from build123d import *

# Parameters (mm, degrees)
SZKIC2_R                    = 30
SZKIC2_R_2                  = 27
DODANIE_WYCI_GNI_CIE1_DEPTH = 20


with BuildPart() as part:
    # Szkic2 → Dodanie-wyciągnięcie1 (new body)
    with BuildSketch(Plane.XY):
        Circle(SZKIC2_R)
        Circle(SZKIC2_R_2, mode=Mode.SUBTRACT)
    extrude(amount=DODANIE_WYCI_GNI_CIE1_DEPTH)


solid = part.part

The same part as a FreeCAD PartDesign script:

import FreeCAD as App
import Part
import Sketcher
Q = App.Units.Quantity

doc = App.newDocument("Part")
body = doc.addObject("PartDesign::Body", "Body")

# Sketch on XY plane
sketch1 = body.newObject("Sketcher::SketchObject", "Sketch")
sketch1.AttachmentSupport = (doc.getObject("XY_Plane"), [""])
sketch1.MapMode = "FlatFace"
sketch1.addGeometry(Part.Circle(App.Vector(0, 0, 0), App.Vector(0, 0, 1), 30), False)
sketch1.addGeometry(Part.Circle(App.Vector(0, 0, 0), App.Vector(0, 0, 1), 27), False)
sketch1.addConstraint(Sketcher.Constraint("Coincident", 0, 3, -1, 1))
sketch1.addConstraint(Sketcher.Constraint("Coincident", 1, 3, -1, 1))
sketch1.addConstraint(Sketcher.Constraint("Diameter", 0, Q("60 mm")))
sketch1.addConstraint(Sketcher.Constraint("Diameter", 1, Q("54 mm")))
pad1 = body.newObject("PartDesign::Pad", "Pad")
pad1.Profile = sketch1
pad1.Length = 20

doc.recompute()
